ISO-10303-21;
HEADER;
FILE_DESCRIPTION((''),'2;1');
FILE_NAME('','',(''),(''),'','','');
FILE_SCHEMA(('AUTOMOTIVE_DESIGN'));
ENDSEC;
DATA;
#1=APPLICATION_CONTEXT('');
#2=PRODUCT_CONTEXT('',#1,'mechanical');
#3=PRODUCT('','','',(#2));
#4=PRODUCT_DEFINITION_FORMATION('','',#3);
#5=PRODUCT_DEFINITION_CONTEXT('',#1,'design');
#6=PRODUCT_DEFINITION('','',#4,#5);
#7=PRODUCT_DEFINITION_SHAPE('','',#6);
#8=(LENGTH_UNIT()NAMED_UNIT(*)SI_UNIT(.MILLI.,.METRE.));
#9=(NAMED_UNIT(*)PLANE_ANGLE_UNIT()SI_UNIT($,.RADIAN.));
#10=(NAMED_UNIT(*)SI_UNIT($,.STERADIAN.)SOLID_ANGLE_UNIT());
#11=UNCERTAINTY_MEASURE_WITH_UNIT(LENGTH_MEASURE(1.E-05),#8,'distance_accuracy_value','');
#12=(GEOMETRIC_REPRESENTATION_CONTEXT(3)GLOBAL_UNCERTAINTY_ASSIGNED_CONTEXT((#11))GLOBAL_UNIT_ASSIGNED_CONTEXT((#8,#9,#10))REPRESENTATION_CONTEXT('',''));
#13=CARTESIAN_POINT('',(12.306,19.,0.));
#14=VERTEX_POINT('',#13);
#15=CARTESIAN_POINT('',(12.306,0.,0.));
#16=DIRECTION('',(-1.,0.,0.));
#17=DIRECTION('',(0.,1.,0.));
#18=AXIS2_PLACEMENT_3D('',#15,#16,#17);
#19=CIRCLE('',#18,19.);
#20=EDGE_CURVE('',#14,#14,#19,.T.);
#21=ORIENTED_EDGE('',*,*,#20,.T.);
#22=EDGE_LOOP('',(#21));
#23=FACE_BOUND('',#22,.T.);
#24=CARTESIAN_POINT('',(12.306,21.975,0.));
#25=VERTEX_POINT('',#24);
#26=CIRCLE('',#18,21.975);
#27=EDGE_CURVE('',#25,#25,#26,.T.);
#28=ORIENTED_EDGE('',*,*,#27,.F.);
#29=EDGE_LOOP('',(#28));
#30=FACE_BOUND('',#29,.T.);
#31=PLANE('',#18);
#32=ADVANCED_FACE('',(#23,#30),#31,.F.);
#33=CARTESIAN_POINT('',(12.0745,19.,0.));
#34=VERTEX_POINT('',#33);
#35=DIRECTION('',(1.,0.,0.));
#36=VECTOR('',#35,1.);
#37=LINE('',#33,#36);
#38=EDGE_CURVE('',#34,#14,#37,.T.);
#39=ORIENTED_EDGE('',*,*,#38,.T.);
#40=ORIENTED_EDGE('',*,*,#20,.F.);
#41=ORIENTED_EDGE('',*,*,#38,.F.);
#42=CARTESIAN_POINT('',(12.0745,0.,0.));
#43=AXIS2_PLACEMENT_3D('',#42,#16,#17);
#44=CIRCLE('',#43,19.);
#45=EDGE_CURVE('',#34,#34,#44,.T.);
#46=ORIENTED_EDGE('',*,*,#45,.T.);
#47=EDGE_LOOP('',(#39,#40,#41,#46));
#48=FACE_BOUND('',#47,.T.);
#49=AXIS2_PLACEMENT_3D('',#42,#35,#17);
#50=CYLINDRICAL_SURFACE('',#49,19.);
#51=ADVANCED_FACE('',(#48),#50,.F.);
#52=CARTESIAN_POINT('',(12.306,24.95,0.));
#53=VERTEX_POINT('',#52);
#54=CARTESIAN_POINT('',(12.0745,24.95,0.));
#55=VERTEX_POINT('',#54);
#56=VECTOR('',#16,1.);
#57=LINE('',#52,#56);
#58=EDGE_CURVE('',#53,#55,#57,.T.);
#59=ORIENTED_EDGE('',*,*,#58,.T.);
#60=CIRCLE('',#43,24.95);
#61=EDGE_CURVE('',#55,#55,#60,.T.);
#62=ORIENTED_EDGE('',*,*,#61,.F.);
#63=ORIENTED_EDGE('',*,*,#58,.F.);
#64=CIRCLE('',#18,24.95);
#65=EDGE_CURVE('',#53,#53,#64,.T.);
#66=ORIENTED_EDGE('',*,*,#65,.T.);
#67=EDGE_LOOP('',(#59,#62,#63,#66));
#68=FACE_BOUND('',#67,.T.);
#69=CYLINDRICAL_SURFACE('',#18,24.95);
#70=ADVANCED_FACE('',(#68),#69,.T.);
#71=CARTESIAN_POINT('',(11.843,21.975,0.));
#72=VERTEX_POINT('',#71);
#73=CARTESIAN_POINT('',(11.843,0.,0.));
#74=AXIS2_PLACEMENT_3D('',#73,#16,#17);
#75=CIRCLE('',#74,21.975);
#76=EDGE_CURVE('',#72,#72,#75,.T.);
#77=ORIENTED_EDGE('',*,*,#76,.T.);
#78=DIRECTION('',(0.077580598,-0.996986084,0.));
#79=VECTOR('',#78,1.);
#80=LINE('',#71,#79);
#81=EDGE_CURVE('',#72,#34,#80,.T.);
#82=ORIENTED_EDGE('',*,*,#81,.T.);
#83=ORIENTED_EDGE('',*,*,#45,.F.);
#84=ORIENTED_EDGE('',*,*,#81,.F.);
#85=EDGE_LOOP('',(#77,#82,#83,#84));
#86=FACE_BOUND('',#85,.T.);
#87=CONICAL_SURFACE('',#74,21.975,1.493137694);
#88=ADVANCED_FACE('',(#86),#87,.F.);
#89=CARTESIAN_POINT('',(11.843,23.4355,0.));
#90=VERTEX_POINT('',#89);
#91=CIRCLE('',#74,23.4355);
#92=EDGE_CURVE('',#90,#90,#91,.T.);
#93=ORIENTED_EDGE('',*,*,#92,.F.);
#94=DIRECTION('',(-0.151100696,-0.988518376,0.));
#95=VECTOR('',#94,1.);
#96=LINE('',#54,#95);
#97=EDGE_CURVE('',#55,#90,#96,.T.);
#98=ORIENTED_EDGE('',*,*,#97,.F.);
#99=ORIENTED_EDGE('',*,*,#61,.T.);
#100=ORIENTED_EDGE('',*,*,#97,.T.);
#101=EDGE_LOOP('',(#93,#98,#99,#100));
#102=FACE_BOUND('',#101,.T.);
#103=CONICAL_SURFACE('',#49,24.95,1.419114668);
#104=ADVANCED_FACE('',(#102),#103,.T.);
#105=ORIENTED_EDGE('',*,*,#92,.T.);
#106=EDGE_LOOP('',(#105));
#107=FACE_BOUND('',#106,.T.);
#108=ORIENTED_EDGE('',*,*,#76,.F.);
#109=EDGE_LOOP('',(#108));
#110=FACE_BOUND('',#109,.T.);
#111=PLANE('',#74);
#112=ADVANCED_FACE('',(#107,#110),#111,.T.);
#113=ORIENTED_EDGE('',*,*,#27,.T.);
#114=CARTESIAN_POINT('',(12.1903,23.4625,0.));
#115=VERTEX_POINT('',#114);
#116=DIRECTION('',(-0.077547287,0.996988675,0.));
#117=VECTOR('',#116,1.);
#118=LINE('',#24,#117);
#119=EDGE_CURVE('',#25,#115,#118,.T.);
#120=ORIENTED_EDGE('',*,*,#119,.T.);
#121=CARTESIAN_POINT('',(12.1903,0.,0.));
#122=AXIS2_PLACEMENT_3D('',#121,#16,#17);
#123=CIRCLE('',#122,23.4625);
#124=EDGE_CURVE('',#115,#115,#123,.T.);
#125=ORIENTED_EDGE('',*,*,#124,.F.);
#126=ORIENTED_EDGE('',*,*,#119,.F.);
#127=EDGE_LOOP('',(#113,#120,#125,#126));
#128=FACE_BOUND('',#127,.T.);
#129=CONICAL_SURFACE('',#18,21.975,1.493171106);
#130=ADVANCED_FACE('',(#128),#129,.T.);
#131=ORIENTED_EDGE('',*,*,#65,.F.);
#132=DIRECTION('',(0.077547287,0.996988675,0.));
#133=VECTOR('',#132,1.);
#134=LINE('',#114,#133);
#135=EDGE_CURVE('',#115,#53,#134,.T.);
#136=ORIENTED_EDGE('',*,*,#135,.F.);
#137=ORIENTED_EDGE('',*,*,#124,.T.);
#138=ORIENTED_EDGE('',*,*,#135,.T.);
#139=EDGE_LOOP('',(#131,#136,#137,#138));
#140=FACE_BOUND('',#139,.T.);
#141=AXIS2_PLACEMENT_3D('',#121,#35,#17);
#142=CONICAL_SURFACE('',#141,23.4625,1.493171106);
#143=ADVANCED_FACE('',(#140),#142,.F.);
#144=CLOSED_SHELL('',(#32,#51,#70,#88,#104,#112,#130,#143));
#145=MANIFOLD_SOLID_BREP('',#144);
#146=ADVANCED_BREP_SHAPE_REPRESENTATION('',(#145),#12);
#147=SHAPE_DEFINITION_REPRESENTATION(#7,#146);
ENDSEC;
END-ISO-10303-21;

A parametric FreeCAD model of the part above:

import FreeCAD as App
import Part
import Sketcher
from FreeCAD import Vector
Q = App.Units.Quantity

doc = App.newDocument("Part")
body = doc.addObject("PartDesign::Body", "Body")

# Sketch on XY plane
sketch1 = doc.addObject("Sketcher::SketchObject", "Sketch")
body.addObject(sketch1)
sketch1.AttachmentSupport = (doc.XY_Plane, [""])
sketch1.MapMode = "FlatFace"
sketch1.addGeometry([
    Part.LineSegment(Vector(12.07, 24.95, 0), Vector(11.84, 23.44, 0)),  # 0
    Part.LineSegment(Vector(11.84, 23.44, 0), Vector(11.84, 21.98, 0)),  # 1
    Part.LineSegment(Vector(11.84, 21.98, 0), Vector(12.07, 19, 0)),  # 2
    Part.LineSegment(Vector(12.07, 19, 0), Vector(12.31, 19, 0)),  # 3
    Part.LineSegment(Vector(12.31, 19, 0), Vector(12.31, 21.98, 0)),  # 4
    Part.LineSegment(Vector(12.31, 21.98, 0), Vector(12.19, 23.46, 0)),  # 5
    Part.LineSegment(Vector(12.19, 23.46, 0), Vector(12.31, 24.95, 0)),  # 6
    Part.LineSegment(Vector(12.31, 24.95, 0), Vector(12.07, 24.95, 0)),  # 7
], False)
sketch1.addConstraint([
    Sketcher.Constraint("Coincident", 0, 2, 1, 1),
    Sketcher.Constraint("Coincident", 1, 2, 2, 1),
    Sketcher.Constraint("Coincident", 2, 2, 3, 1),
    Sketcher.Constraint("Coincident", 3, 2, 4, 1),
    Sketcher.Constraint("Coincident", 4, 2, 5, 1),
    Sketcher.Constraint("Coincident", 5, 2, 6, 1),
    Sketcher.Constraint("Coincident", 6, 2, 7, 1),
    Sketcher.Constraint("Coincident", 7, 2, 0, 1),
    Sketcher.Constraint("Vertical", 1),
    Sketcher.Constraint("Horizontal", 3),
    Sketcher.Constraint("Vertical", 4),
    Sketcher.Constraint("Horizontal", 7),
    Sketcher.Constraint("Parallel", 2, 5),
    Sketcher.Constraint("Horizontal", 1, 2, 4, 2),
    Sketcher.Constraint("Vertical", 4, 2, 6, 2),
    Sketcher.Constraint("Vertical", 2, 2, 7, 2),
    Sketcher.Constraint("Equal", 5, 6),
    Sketcher.Constraint("DistanceY", -1, 1, 2, 2, 19.0),
    Sketcher.Constraint("Angle", 0, Q("-98.6907 deg")),
    Sketcher.Constraint("Angle", 2, Q("-85.5505 deg")),
    Sketcher.Constraint("DistanceY", 4, 1, 4, 2, 2.975),
    Sketcher.Constraint("DistanceY", -1, 1, 6, 2, 24.95),
    Sketcher.Constraint("DistanceX", 3, 1, 3, 2, 0.2315),
    Sketcher.Constraint("DistanceX", -1, 1, 0, 2, 11.843),
])
revolution = doc.addObject("PartDesign::Revolution", "Revolution")
body.addObject(revolution)
revolution.Profile = sketch1
revolution.ReferenceAxis = (sketch1, ["H_Axis"])
revolution.Angle = 360

doc.recompute()
